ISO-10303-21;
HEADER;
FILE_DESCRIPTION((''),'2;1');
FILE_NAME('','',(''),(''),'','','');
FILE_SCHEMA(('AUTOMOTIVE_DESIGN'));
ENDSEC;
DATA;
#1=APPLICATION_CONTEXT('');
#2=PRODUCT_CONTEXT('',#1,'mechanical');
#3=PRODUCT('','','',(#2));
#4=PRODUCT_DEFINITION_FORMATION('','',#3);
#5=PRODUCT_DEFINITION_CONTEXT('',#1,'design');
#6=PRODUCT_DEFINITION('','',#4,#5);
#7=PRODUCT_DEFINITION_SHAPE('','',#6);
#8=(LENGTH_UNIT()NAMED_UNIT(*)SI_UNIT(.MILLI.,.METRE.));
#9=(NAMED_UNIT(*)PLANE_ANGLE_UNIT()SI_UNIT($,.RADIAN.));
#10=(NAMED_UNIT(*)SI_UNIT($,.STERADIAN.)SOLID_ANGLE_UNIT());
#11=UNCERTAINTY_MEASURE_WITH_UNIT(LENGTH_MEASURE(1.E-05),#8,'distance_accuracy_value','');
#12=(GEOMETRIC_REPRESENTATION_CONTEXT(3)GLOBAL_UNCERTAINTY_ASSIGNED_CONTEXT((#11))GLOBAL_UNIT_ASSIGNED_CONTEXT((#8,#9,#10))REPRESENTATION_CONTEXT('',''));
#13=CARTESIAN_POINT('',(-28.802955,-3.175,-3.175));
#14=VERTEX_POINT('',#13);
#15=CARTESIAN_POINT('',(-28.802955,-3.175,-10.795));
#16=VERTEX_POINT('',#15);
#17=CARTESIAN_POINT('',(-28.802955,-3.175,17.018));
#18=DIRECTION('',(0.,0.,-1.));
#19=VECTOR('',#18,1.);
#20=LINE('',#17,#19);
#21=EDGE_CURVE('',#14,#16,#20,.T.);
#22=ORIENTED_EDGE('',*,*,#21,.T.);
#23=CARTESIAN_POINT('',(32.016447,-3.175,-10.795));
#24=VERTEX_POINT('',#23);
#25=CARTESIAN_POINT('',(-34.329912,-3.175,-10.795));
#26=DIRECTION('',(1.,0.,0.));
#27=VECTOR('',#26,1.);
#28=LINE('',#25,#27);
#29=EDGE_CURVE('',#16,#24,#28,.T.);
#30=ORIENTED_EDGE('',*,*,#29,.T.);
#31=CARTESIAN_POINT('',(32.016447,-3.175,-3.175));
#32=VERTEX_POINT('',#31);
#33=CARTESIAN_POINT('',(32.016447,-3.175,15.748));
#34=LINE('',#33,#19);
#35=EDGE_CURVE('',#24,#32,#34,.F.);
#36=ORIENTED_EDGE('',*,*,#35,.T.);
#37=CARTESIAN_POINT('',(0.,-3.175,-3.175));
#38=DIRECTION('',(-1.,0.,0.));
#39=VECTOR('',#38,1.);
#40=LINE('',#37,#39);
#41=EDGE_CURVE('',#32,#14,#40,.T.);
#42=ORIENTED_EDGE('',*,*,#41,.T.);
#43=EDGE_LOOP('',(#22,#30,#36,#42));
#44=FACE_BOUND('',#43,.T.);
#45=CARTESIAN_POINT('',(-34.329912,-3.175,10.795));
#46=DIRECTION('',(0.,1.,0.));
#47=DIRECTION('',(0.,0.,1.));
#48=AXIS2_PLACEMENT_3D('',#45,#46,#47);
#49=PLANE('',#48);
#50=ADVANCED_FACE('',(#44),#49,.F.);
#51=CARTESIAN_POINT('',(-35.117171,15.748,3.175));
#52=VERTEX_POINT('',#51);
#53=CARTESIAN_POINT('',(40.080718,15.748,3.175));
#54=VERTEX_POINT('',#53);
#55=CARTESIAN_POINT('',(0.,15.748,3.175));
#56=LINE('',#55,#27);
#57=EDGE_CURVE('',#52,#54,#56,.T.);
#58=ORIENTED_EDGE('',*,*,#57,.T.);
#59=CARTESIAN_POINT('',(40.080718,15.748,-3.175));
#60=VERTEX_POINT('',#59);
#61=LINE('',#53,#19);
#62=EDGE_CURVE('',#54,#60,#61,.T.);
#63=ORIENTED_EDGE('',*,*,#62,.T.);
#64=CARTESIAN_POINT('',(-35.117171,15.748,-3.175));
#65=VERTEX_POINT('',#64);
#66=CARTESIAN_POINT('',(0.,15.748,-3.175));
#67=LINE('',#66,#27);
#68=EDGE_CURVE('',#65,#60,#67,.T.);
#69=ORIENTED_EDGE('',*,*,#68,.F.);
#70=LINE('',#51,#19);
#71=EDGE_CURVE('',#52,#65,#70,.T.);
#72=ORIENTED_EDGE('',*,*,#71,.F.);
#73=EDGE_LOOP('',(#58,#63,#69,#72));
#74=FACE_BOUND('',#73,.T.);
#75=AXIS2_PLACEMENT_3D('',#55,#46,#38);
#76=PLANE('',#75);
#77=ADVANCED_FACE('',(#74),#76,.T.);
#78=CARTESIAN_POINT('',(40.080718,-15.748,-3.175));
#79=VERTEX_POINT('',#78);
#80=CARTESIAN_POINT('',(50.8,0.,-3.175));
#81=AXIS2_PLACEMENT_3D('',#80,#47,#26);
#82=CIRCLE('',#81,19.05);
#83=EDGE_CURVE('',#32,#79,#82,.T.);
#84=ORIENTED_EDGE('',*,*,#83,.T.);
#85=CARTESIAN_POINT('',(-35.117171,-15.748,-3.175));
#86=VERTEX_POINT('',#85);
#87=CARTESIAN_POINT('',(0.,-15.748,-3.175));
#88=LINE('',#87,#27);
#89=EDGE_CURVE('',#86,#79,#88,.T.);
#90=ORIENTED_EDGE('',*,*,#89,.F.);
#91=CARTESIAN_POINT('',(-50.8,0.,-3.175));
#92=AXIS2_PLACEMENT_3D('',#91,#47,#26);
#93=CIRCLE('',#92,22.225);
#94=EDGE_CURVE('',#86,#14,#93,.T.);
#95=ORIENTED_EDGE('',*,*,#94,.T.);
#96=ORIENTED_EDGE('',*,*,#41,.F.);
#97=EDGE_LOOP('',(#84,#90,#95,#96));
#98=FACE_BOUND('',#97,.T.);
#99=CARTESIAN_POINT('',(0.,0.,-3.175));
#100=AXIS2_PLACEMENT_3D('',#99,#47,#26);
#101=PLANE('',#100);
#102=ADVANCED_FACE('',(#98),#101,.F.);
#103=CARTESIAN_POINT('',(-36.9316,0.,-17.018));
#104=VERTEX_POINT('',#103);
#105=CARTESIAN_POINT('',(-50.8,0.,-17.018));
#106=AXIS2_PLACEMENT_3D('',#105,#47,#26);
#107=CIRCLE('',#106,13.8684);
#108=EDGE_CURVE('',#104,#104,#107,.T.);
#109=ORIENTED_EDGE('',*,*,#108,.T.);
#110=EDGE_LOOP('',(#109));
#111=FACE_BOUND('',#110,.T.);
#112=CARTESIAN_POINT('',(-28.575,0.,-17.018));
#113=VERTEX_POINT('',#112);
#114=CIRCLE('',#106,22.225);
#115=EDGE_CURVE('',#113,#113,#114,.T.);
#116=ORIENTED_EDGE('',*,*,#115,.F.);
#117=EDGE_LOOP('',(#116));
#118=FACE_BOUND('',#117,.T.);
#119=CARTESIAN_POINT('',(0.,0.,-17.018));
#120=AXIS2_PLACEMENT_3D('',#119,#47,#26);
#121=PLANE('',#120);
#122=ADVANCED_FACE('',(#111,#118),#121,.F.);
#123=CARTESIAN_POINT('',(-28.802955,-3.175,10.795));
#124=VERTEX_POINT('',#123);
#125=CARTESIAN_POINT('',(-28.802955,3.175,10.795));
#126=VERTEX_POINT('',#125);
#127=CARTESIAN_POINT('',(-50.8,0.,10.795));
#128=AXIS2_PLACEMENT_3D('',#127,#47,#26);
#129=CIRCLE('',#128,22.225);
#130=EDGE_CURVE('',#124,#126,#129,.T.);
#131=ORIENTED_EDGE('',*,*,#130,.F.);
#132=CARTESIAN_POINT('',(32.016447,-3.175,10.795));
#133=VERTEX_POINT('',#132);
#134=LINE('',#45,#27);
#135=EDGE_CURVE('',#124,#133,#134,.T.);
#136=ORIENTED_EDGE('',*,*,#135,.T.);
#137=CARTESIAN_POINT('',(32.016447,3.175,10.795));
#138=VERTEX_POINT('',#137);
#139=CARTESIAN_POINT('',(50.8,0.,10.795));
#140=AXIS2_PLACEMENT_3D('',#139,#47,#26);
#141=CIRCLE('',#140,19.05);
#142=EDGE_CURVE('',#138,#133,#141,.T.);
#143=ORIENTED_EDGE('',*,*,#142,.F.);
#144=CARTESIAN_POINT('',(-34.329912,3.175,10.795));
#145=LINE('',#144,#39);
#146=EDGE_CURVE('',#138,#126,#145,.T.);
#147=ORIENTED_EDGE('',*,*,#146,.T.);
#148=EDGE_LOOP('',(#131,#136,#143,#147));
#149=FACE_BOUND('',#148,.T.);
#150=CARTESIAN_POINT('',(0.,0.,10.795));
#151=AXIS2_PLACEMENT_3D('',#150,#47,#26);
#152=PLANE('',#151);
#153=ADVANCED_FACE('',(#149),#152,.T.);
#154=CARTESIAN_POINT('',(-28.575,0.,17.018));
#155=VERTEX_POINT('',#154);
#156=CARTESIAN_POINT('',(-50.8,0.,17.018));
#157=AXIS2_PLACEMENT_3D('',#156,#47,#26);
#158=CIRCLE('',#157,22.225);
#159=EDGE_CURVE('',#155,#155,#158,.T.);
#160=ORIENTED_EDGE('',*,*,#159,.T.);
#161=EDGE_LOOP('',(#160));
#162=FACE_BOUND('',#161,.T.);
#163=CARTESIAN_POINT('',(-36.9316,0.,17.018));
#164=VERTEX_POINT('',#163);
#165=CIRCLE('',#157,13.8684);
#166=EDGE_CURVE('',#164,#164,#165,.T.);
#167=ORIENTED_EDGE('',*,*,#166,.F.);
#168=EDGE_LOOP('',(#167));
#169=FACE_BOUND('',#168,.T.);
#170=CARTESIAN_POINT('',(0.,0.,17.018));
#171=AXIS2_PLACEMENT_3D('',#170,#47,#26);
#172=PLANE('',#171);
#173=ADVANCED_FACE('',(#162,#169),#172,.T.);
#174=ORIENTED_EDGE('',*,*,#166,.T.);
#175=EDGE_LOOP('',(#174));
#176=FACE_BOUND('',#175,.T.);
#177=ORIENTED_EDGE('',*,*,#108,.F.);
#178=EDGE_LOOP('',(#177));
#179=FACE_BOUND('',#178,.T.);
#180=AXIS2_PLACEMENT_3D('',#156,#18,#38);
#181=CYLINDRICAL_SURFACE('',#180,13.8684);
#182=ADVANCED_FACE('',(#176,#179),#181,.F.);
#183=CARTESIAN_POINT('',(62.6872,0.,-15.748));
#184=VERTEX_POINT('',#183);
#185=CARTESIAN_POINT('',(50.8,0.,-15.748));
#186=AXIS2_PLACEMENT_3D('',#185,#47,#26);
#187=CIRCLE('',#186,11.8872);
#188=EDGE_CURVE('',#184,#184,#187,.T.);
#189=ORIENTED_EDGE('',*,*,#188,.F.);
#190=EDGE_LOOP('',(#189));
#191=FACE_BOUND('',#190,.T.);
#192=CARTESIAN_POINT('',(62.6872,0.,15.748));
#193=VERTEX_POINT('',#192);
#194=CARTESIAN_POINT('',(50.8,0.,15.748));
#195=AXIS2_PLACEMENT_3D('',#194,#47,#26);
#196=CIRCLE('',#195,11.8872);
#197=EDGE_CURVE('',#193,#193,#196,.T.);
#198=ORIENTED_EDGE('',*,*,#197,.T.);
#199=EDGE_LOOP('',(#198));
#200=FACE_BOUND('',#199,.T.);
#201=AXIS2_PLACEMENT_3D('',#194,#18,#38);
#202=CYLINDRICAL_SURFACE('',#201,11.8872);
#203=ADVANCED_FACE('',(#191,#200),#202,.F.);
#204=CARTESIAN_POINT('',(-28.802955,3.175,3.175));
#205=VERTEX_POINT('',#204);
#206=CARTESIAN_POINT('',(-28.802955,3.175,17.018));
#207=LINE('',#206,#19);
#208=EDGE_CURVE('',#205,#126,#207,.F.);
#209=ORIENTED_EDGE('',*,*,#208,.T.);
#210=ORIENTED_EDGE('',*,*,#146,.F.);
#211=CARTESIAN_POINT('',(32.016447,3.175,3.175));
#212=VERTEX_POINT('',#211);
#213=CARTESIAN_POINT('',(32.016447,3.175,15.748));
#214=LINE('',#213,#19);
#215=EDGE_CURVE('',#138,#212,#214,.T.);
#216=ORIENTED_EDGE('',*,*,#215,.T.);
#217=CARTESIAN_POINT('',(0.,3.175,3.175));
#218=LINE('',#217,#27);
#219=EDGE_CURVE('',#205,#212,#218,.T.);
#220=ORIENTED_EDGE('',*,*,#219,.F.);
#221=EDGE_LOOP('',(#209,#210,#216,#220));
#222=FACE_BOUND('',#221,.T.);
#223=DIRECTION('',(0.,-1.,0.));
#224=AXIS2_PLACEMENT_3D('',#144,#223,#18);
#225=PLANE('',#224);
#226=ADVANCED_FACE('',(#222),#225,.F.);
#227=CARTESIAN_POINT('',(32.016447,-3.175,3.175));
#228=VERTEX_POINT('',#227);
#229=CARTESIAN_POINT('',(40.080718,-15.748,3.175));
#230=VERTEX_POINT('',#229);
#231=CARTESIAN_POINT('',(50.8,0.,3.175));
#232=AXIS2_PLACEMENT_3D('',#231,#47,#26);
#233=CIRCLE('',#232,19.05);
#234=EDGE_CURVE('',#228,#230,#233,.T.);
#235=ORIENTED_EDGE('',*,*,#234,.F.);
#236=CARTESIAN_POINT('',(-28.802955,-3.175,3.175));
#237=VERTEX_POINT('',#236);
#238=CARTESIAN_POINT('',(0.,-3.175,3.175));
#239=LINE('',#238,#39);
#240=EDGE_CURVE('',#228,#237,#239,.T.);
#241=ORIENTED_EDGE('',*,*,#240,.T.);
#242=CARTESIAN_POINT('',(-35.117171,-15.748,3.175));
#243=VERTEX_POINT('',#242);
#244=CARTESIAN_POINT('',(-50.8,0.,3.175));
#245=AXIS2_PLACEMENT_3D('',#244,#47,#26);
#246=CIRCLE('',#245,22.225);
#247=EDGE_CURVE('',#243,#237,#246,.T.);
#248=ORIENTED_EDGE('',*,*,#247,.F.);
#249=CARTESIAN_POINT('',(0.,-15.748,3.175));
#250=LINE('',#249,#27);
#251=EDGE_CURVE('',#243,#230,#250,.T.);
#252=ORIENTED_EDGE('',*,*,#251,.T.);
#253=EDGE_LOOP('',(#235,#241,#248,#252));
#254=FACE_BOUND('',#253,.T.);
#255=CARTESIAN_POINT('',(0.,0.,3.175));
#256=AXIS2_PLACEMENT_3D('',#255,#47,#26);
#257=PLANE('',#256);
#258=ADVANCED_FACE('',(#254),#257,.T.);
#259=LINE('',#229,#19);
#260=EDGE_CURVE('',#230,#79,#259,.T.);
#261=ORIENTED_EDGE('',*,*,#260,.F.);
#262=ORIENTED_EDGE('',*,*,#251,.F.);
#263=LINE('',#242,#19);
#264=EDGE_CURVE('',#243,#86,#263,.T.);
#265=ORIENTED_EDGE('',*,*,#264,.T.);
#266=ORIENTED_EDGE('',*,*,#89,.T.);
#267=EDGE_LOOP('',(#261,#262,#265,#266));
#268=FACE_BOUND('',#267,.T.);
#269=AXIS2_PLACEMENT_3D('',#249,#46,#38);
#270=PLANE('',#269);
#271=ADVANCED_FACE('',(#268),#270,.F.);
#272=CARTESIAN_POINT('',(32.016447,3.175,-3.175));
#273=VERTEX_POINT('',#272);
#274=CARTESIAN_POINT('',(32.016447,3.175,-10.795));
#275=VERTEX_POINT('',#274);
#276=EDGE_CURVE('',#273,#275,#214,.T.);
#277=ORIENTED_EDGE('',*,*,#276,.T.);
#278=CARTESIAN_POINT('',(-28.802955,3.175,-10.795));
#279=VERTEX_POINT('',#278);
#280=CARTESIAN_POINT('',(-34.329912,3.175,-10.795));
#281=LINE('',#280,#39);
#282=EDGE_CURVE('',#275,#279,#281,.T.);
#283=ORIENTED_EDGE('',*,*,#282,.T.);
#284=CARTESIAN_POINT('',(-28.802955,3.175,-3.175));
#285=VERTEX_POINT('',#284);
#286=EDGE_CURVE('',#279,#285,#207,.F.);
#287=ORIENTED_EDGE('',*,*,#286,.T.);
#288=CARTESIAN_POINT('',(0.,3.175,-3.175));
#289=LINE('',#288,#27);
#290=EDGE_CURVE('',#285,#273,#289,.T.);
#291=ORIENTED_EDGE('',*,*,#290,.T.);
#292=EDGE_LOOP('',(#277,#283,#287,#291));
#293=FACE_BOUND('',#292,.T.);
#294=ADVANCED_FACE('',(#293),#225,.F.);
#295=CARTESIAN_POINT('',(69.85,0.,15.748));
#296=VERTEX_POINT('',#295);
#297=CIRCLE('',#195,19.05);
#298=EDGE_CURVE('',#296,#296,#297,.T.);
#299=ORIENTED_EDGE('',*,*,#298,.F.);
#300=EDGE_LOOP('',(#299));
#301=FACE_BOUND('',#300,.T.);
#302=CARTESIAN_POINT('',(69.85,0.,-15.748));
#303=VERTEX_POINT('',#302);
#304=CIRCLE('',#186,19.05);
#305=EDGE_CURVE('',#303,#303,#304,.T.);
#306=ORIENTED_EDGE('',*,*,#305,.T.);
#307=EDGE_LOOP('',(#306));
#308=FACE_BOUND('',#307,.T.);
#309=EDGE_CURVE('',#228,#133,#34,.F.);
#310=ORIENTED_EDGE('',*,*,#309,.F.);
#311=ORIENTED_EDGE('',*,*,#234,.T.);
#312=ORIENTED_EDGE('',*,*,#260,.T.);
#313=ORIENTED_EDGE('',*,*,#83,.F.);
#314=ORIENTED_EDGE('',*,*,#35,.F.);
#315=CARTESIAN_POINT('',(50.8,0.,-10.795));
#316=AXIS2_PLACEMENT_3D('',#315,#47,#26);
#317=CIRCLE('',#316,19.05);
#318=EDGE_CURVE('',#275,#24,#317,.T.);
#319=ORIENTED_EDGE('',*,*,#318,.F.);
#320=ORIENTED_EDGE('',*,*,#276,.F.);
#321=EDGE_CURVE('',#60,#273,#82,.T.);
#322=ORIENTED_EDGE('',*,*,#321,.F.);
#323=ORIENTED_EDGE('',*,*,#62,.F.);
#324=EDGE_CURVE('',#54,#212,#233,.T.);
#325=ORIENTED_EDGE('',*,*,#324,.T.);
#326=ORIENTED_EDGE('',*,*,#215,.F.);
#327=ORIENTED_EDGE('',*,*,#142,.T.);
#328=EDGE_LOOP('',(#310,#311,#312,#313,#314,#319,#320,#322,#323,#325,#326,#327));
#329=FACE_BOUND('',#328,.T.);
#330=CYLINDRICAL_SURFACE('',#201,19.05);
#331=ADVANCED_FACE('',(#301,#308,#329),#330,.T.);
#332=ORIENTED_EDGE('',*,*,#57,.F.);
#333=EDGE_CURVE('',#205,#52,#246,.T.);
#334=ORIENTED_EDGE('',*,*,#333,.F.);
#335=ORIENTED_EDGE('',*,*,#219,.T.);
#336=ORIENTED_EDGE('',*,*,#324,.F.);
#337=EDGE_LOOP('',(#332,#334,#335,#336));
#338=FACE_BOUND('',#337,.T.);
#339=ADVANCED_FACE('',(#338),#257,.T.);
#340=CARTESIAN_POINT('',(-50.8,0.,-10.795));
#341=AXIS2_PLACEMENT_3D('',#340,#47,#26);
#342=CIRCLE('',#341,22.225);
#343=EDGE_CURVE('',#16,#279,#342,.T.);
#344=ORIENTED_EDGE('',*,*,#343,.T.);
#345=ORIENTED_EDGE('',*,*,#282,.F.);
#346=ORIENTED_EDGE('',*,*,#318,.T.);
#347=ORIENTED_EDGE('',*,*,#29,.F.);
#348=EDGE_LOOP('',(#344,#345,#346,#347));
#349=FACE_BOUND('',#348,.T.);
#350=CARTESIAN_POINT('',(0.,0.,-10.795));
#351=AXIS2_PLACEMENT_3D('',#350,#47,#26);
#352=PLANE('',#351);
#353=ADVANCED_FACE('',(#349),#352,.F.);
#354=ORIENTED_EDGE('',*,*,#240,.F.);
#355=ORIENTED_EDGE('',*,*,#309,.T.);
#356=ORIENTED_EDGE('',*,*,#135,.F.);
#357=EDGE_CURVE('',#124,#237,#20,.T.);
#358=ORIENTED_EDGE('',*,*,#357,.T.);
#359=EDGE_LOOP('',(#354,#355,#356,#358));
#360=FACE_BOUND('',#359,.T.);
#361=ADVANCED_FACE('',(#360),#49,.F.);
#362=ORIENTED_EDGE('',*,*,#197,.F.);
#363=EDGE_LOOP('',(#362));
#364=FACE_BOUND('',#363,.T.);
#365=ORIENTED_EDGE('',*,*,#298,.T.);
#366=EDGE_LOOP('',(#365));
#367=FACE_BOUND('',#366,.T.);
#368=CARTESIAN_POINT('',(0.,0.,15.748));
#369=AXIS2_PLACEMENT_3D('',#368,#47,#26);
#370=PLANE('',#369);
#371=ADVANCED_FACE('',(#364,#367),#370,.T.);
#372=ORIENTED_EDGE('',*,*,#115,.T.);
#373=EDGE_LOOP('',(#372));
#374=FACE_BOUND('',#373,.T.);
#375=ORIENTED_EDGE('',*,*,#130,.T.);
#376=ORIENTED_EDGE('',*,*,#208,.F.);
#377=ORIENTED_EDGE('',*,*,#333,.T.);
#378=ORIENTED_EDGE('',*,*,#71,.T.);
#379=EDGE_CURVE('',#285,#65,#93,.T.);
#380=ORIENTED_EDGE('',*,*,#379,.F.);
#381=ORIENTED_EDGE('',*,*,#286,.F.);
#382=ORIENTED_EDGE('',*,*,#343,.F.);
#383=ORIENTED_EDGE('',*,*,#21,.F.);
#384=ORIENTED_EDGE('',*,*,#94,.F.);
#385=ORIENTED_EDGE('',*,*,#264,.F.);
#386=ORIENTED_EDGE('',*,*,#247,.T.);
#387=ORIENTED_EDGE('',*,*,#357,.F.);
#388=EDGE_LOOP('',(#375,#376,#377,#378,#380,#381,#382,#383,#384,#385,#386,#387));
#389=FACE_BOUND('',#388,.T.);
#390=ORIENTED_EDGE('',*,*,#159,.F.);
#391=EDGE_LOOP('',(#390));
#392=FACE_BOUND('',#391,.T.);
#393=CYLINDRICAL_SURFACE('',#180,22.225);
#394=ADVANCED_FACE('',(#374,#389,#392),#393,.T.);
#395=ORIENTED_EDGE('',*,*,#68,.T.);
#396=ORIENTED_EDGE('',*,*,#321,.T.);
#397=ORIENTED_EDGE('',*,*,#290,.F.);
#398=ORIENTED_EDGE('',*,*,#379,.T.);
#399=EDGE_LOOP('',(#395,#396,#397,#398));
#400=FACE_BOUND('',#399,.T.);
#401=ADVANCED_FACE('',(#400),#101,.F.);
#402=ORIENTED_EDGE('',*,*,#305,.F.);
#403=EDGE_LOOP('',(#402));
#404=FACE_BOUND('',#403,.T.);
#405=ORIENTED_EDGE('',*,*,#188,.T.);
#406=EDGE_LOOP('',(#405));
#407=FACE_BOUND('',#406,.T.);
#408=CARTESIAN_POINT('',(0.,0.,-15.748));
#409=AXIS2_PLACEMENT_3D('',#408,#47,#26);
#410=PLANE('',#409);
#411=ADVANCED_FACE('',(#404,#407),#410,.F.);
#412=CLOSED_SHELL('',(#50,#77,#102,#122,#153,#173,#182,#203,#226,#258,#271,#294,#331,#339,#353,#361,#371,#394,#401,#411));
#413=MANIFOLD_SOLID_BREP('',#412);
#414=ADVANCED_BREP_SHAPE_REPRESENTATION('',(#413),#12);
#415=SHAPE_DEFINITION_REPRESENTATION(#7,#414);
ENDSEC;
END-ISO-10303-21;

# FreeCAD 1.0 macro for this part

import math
import FreeCAD as App
import Part
import Sketcher
from FreeCAD import Vector
Q = App.Units.Quantity


def add_polygon(sketch, points):
    """Adds a closed chain of lines whose ends are joined by coincident constraints."""
    first, n = sketch.GeometryCount, len(points)
    for a, b in zip(points, points[1:] + points[:1]):
        sketch.addGeometry(Part.LineSegment(App.Vector(*a, 0), App.Vector(*b, 0)), False)
    for i in range(n):
        sketch.addConstraint(Sketcher.Constraint("Coincident", first + i, 2, first + (i + 1) % n, 1))

doc = App.newDocument("Part")
body = doc.addObject("PartDesign::Body", "Body")

# Sketch on XY plane
sketch1 = body.newObject("Sketcher::SketchObject", "Sketch")
sketch1.AttachmentSupport = (doc.getObject("XY_Plane"), [""])
sketch1.MapMode = "FlatFace"
sketch1.addGeometry([
    Part.Circle(Vector(-51, 0, 0), Vector(0, 0, 1), 22),
    Part.Circle(Vector(-51, 0, 0), Vector(0, 0, 1), 14),
], False)
sketch1.addConstraint([
    Sketcher.Constraint("Coincident", 1, 3, 0, 3),
    Sketcher.Constraint("PointOnObject", 0, 3, -1),
    Sketcher.Constraint("Diameter", 0, Q("1.75 in")),
    Sketcher.Constraint("Diameter", 1, Q("1.092 in")),
    Sketcher.Constraint("DistanceX", 0, 3, -1, 1, Q("2 in")),
])
pad1 = body.newObject("PartDesign::Pad", "Pad")
pad1.Profile = sketch1
pad1.Length = Q("1.34 in")
pad1.Midplane = True
body2 = doc.addObject("PartDesign::Body", "Body001")

# Sketch on XY plane
sketch2 = body2.newObject("Sketcher::SketchObject", "Sketch001")
sketch2.AttachmentSupport = (doc.getObject("XY_Plane001"), [""])
sketch2.MapMode = "FlatFace"
sketch2.addGeometry([
    Part.Circle(Vector(51, 0, 0), Vector(0, 0, 1), 19),
    Part.Circle(Vector(51, 0, 0), Vector(0, 0, 1), 12),
], False)
sketch2.addConstraint([
    Sketcher.Constraint("Coincident", 1, 3, 0, 3),
    Sketcher.Constraint("PointOnObject", 0, 3, -1),
    Sketcher.Constraint("Diameter", 0, Q("1.5 in")),
    Sketcher.Constraint("Diameter", 1, Q("0.936 in")),
    Sketcher.Constraint("DistanceX", -1, 1, 0, 3, Q("2 in")),
])
pad2 = body2.newObject("PartDesign::Pad", "Pad001")
pad2.Profile = sketch2
pad2.Length = Q("1.24 in")
pad2.Midplane = True
body.AllowCompound = True
doc.recompute()

boolean = body.newObject("PartDesign::Boolean", "Boolean")
boolean.Type = "Fuse"
boolean.addObjects([body2])

# Sketch on XY plane
sketch3 = body.newObject("Sketcher::SketchObject", "Sketch002")
sketch3.AttachmentSupport = (doc.getObject("XY_Plane"), [""])
sketch3.MapMode = "FlatFace"
sketch3.addGeometry([
    Part.LineSegment(Vector(40, 16, 0), Vector(-35, 16, 0)),  # 0
    Part.ArcOfCircle(Part.Circle(Vector(-51, 0, 0), Vector(0, 0, 1), 22), math.radians(0), math.radians(45)),  # 1
    Part.ArcOfCircle(Part.Circle(Vector(-51, 0, 0), Vector(0, 0, 1), 22), math.radians(-45), math.radians(0)),  # 2
    Part.LineSegment(Vector(-35, -16, 0), Vector(40, -16, 0)),  # 3
    Part.ArcOfCircle(Part.Circle(Vector(51, 0, 0), Vector(0, 0, 1), 19), math.radians(124), math.radians(236)),  # 4
], False)
sketch3.addConstraint([
    Sketcher.Constraint("Coincident", 0, 2, 1, 2),
    Sketcher.Constraint("Tangent", 1, 1, 2, 2),
    Sketcher.Constraint("Coincident", 2, 1, 3, 1),
    Sketcher.Constraint("Coincident", 3, 2, 4, 2),
    Sketcher.Constraint("Coincident", 4, 1, 0, 1),
    Sketcher.Constraint("Horizontal", 0),
    Sketcher.Constraint("Horizontal", 3),
    Sketcher.Constraint("Equal", 1, 2),
    Sketcher.Constraint("Symmetric", 1, 3, 4, 3, -1, 1),
    Sketcher.Constraint("Symmetric", 0, 2, 2, 1, -1),
    Sketcher.Constraint("PointOnObject", 1, 1, -1),
    Sketcher.Constraint("Radius", 4, Q("0.75 in")),
    Sketcher.Constraint("DistanceX", 1, 3, -1, 1, Q("2 in")),
    Sketcher.Constraint("Radius", 1, Q("0.875 in")),
    Sketcher.Constraint("DistanceY", -1, 1, 0, 2, Q("0.62 in")),
])
pad3 = body.newObject("PartDesign::Pad", "Pad002")
pad3.Profile = sketch3
pad3.Length = Q("0.25 in")
pad3.Midplane = True

# Sketch on XY plane
sketch4 = body.newObject("Sketcher::SketchObject", "Sketch003")
sketch4.AttachmentSupport = (doc.getObject("XY_Plane"), [""])
sketch4.MapMode = "FlatFace"
add_polygon(sketch4, [(-34, 3), (-34, -3), (34, -3), (34, 3)])  # lines 0-3
sketch4.addConstraint([
    Sketcher.Constraint("Vertical", 0),
    Sketcher.Constraint("Horizontal", 1),
    Sketcher.Constraint("Vertical", 2),
    Sketcher.Constraint("Horizontal", 3),
    Sketcher.Constraint("Symmetric", 0, 2, 2, 2, -1, 1),
    Sketcher.Constraint("DistanceY", 0, 2, 0, 1, Q("0.25 in")),
    Sketcher.Constraint("DistanceX", 1, 1, 1, 2, Q("68.659824 mm")),
])
pad4 = body.newObject("PartDesign::Pad", "Pad003")
pad4.Profile = sketch4
pad4.Length = Q("0.85 in")
pad4.Midplane = True

doc.recompute()
